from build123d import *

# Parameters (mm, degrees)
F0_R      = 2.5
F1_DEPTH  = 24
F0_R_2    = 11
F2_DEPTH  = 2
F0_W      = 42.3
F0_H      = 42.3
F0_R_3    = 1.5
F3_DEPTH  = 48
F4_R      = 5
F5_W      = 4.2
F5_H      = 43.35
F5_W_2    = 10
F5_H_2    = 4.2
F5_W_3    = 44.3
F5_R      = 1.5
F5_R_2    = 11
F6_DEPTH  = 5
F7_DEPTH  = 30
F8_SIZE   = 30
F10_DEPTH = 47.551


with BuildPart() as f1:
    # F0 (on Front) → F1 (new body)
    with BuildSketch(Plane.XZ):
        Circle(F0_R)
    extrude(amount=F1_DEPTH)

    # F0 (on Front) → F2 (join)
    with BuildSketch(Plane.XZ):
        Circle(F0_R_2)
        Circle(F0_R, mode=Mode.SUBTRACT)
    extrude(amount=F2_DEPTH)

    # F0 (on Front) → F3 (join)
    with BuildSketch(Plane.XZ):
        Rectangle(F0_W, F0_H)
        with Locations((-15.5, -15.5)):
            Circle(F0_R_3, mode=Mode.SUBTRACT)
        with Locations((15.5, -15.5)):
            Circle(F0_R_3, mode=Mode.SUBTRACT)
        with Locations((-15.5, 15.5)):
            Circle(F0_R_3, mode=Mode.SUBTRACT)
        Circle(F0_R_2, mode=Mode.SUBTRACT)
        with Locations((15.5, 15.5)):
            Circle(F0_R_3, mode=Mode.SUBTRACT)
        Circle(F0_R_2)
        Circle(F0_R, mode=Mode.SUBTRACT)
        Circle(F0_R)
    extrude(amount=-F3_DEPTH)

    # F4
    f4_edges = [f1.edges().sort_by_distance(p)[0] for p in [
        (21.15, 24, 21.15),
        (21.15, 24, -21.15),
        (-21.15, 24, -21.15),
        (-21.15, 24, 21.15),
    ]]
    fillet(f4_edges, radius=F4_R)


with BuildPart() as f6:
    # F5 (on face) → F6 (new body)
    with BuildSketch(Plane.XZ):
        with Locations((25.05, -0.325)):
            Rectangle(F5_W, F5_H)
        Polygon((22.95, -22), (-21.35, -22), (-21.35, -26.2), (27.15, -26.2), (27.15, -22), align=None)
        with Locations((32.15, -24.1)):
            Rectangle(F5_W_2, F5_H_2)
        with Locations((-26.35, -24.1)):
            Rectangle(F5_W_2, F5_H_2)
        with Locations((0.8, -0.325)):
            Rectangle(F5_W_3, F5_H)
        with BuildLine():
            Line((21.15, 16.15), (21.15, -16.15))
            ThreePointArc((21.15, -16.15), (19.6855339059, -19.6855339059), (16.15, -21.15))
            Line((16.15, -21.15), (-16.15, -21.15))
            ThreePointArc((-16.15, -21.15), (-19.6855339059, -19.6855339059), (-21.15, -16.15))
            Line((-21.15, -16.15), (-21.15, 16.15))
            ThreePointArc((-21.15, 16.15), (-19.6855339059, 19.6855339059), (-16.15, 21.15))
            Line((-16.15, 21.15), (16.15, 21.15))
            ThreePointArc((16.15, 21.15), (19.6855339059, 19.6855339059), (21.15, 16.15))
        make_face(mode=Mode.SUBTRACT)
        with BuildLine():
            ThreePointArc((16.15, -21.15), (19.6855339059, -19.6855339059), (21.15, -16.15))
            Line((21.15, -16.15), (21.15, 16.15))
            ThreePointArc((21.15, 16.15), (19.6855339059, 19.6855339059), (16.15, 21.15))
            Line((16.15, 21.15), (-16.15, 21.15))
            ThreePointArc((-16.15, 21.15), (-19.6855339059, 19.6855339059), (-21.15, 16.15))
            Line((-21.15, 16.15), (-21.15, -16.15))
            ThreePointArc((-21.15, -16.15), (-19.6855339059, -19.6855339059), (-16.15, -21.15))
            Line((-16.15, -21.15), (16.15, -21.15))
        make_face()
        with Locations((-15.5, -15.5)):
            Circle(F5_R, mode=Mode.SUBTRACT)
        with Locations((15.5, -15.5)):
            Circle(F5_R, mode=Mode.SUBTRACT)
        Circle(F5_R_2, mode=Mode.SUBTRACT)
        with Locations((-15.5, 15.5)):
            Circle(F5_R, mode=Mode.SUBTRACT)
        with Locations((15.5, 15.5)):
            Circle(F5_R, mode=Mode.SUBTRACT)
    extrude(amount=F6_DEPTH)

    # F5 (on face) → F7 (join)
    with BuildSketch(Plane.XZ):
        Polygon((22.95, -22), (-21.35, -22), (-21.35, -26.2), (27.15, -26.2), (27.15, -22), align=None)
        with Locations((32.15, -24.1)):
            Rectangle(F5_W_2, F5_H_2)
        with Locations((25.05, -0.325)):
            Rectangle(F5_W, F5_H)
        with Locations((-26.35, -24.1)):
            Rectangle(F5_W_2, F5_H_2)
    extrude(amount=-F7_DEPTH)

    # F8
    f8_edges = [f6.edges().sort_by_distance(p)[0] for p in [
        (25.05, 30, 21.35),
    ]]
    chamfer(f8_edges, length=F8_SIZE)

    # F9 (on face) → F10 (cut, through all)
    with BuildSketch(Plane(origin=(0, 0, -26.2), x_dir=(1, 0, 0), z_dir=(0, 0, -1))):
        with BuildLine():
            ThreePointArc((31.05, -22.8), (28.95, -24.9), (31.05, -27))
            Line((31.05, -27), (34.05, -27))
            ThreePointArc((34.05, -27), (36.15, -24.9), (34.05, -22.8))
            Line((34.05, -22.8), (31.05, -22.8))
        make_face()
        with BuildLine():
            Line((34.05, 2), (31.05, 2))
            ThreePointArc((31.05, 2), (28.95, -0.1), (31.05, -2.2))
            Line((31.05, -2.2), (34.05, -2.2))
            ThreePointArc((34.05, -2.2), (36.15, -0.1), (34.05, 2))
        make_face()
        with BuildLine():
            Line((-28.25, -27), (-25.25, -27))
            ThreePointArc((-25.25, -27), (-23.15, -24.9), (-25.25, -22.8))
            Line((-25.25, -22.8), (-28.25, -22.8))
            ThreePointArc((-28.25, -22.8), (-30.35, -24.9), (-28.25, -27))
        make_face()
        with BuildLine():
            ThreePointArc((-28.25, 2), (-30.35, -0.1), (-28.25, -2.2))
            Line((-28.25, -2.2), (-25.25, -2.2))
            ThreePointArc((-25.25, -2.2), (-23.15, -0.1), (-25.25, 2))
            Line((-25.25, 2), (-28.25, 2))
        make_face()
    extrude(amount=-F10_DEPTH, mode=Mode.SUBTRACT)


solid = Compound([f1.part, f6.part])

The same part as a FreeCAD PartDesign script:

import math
import FreeCAD as App
import Part
import Sketcher
from FreeCAD import Vector


def edges_at(feature, points):
    """Names of the edges that pass closest to the given points."""
    edges = feature.Shape.Edges
    near = lambda p: min(range(len(edges)), key=lambda i: edges[i].distToShape(Part.Vertex(*p))[0])
    return sorted({f"Edge{near(p) + 1}" for p in points})


def add_polygon(sketch, points):
    """Adds a closed chain of lines whose ends are joined by coincident constraints."""
    first, n = sketch.GeometryCount, len(points)
    for a, b in zip(points, points[1:] + points[:1]):
        sketch.addGeometry(Part.LineSegment(App.Vector(*a, 0), App.Vector(*b, 0)), False)
    for i in range(n):
        sketch.addConstraint(Sketcher.Constraint("Coincident", first + i, 2, first + (i + 1) % n, 1))

doc = App.newDocument("Part")
params = doc.addObject("Spreadsheet::Sheet", "Params")
for row, (alias, value) in enumerate([
    ("sketch1_diameter", "5 mm"),
    ("pad1_length", "24 mm"),
    ("sketch2_diameter", "22 mm"),
    ("sketch2_diameter2", "5 mm"),
    ("pad2_length", "2 mm"),
    ("sketch3_diameter", "3 mm"),
    ("sketch3_width", "42.3 mm"),
    ("pad3_length", "48 mm"),
    ("fillet_radius", "5 mm"),
    ("sketch4_diameter", "3 mm"),
    ("sketch4_diameter2", "22 mm"),
    ("sketch4_width", "10 mm"),
    ("sketch4_width2", "68.5 mm"),
    ("sketch4_height", "4.2 mm"),
    ("pad4_length", "5 mm"),
    ("sketch5_width", "10 mm"),
    ("sketch5_width2", "4.2 mm"),
    ("sketch5_width3", "54.3 mm"),
    ("sketch5_height", "43.35 mm"),
    ("pad5_length", "30 mm"),
    ("chamfer_size", "30 mm"),
    ("sketch6_radius", "2.1 mm"),
    ("sketch6_width", "3 mm"),
], start=1):
    params.set(f"A{row}", alias)
    params.set(f"B{row}", "=" + value)
    params.setAlias(f"B{row}", alias)

body = doc.addObject("PartDesign::Body", "Body")

# Sketch on XZ plane
sketch1 = body.newObject("Sketcher::SketchObject", "Sketch")
sketch1.AttachmentSupport = (doc.getObject("XZ_Plane"), [""])
sketch1.MapMode = "FlatFace"
sketch1.addGeometry(Part.Circle(Vector(0, 0, 0), Vector(0, 0, 1), 2.5), False)
sketch1.addConstraint([
    Sketcher.Constraint("Coincident", 0, 3, -1, 1),
    Sketcher.Constraint("Diameter", 0, 5.0),
])
sketch1.setExpression("Constraints[1]", "Params.sketch1_diameter")
pad1 = body.newObject("PartDesign::Pad", "Pad")
pad1.Profile = sketch1
pad1.setExpression("Length", "Params.pad1_length")

# Sketch on XZ plane
sketch2 = body.newObject("Sketcher::SketchObject", "Sketch001")
sketch2.AttachmentSupport = (doc.getObject("XZ_Plane"), [""])
sketch2.MapMode = "FlatFace"
sketch2.addGeometry([
    Part.Circle(Vector(0, 0, 0), Vector(0, 0, 1), 11),
    Part.Circle(Vector(0, 0, 0), Vector(0, 0, 1), 2.5),
], False)
sketch2.addConstraint([
    Sketcher.Constraint("Coincident", 0, 3, -1, 1),
    Sketcher.Constraint("Coincident", 1, 3, -1, 1),
    Sketcher.Constraint("Diameter", 0, 22.0),
    Sketcher.Constraint("Diameter", 1, 5.0),
])
sketch2.setExpression("Constraints[2]", "Params.sketch2_diameter")
sketch2.setExpression("Constraints[3]", "Params.sketch2_diameter2")
pad2 = body.newObject("PartDesign::Pad", "Pad001")
pad2.Profile = sketch2
pad2.setExpression("Length", "Params.pad2_length")

# Sketch on XZ plane
sketch3 = body.newObject("Sketcher::SketchObject", "Sketch002")
sketch3.AttachmentSupport = (doc.getObject("XZ_Plane"), [""])
sketch3.MapMode = "FlatFace"
add_polygon(sketch3, [(-21.1, 21.1), (-21.1, -21.1), (21.1, -21.1), (21.1, 21.1)])  # lines 0-3
sketch3.addGeometry(Part.Circle(Vector(-15.5, -15.5, 0), Vector(0, 0, 1), 1.5), False)  # 4
sketch3.addGeometry(Part.Circle(Vector(15.5, -15.5, 0), Vector(0, 0, 1), 1.5), False)  # 5
sketch3.addGeometry(Part.Circle(Vector(-15.5, 15.5, 0), Vector(0, 0, 1), 1.5), False)  # 6
sketch3.addGeometry(Part.Circle(Vector(15.5, 15.5, 0), Vector(0, 0, 1), 1.5), False)  # 7
sketch3.addConstraint([
    Sketcher.Constraint("Vertical", 0),
    Sketcher.Constraint("Horizontal", 1),
    Sketcher.Constraint("Vertical", 2),
    Sketcher.Constraint("Horizontal", 3),
    Sketcher.Constraint("Equal", 4, 5),
    Sketcher.Constraint("Equal", 5, 6),
    Sketcher.Constraint("Equal", 6, 7),
    Sketcher.Constraint("Symmetric", 5, 3, 6, 3, -1, 1),
    Sketcher.Constraint("Symmetric", 4, 3, 7, 3, -1, 1),
    Sketcher.Constraint("Symmetric", 0, 2, 2, 2, -1, 1),
    Sketcher.Constraint("Symmetric", 4, 3, 5, 3, -2),
    Sketcher.Constraint("Equal", 3, 0),
    Sketcher.Constraint("Diameter", 4, 3.0),
    Sketcher.Constraint("DistanceX", 1, 1, 1, 2, 42.3),
    Sketcher.Constraint("DistanceX", 4, 3, 5, 3, 31.0),
    Sketcher.Constraint("DistanceY", 4, 3, 6, 3, 31.0),
])
sketch3.setExpression("Constraints[16]", "Params.sketch3_diameter")
sketch3.setExpression("Constraints[17]", "Params.sketch3_width")
pad3 = body.newObject("PartDesign::Pad", "Pad002")
pad3.Profile = sketch3
pad3.setExpression("Length", "Params.pad3_length")
pad3.Reversed = True
doc.recompute()

fillet = body.newObject("PartDesign::Fillet", "Fillet")
fillet.Base = (pad3, edges_at(pad3, [
    (21.15, 24, 21.15),
    (21.15, 24, -21.15),
    (-21.15, 24, -21.15),
    (-21.15, 24, 21.15),
]))
fillet.setExpression("Radius", "Params.fillet_radius")
body2 = doc.addObject("PartDesign::Body", "Body001")

# Sketch on XZ plane
sketch4 = body2.newObject("Sketcher::SketchObject", "Sketch003")
sketch4.AttachmentSupport = (doc.getObject("XZ_Plane001"), [""])
sketch4.MapMode = "FlatFace"
add_polygon(sketch4, [(-21.4, -22), (-31.4, -22), (-31.4, -26.2), (37.1, -26.2), (37.1, -22), (27.1, -22), (27.1, 21.4), (-21.4, 21.4)])  # lines 0-7
sketch4.addGeometry(Part.Circle(Vector(-15.5, -15.5, 0), Vector(0, 0, 1), 1.5), False)  # 8
sketch4.addGeometry(Part.Circle(Vector(15.5, -15.5, 0), Vector(0, 0, 1), 1.5), False)  # 9
sketch4.addGeometry(Part.Circle(Vector(-15.5, 15.5, 0), Vector(0, 0, 1), 1.5), False)  # 10
sketch4.addGeometry(Part.Circle(Vector(0, 0, 0), Vector(0, 0, 1), 11), False)  # 11
sketch4.addGeometry(Part.Circle(Vector(15.5, 15.5, 0), Vector(0, 0, 1), 1.5), False)  # 12
sketch4.addConstraint([
    Sketcher.Constraint("Horizontal", 0),
    Sketcher.Constraint("Vertical", 1),
    Sketcher.Constraint("Horizontal", 2),
    Sketcher.Constraint("Vertical", 3),
    Sketcher.Constraint("Horizontal", 4),
    Sketcher.Constraint("Vertical", 5),
    Sketcher.Constraint("Horizontal", 6),
    Sketcher.Constraint("Vertical", 7),
    Sketcher.Constraint("Coincident", 11, 3, -1, 1),
    Sketcher.Constraint("Equal", 8, 9),
    Sketcher.Constraint("Equal", 9, 10),
    Sketcher.Constraint("Equal", 10, 12),
    Sketcher.Constraint("Symmetric", 9, 3, 10, 3, -1, 1),
    Sketcher.Constraint("Symmetric", 8, 3, 12, 3, -1, 1),
    Sketcher.Constraint("Symmetric", 8, 3, 9, 3, -2),
    Sketcher.Constraint("Horizontal", 0, 2, 3, 2),
    Sketcher.Constraint("Equal", 0, 4),
    Sketcher.Constraint("Diameter", 8, 3.0),
    Sketcher.Constraint("Diameter", 11, 22.0),
    Sketcher.Constraint("DistanceX", 0, 2, 0, 1, 10.0),
    Sketcher.Constraint("DistanceX", 2, 1, 2, 2, 68.5),
    Sketcher.Constraint("DistanceY", 1, 2, 1, 1, 4.2),
    Sketcher.Constraint("DistanceY", 0, 2, -1, 1, 22.0),
    Sketcher.Constraint("DistanceX", 8, 3, 9, 3, 31.0),
    Sketcher.Constraint("DistanceY", 8, 3, 10, 3, 31.0),
    Sketcher.Constraint("DistanceY", 5, 1, 5, 2, 43.35),
    Sketcher.Constraint("DistanceX", 0, 2, -1, 1, 31.35),
])
sketch4.setExpression("Constraints[25]", "Params.sketch4_diameter")
sketch4.setExpression("Constraints[26]", "Params.sketch4_diameter2")
sketch4.setExpression("Constraints[27]", "Params.sketch4_width")
sketch4.setExpression("Constraints[28]", "Params.sketch4_width2")
sketch4.setExpression("Constraints[29]", "Params.sketch4_height")
pad4 = body2.newObject("PartDesign::Pad", "Pad003")
pad4.Profile = sketch4
pad4.setExpression("Length", "Params.pad4_length")

# Sketch on XZ plane
sketch5 = body2.newObject("Sketcher::SketchObject", "Sketch004")
sketch5.AttachmentSupport = (doc.getObject("XZ_Plane001"), [""])
sketch5.MapMode = "FlatFace"
add_polygon(sketch5, [(37.1, -26.2), (37.1, -22), (27.1, -22), (27.1, 21.4), (22.9, 21.4), (22.9, -22), (-31.4, -22), (-31.4, -26.2)])  # lines 0-7
sketch5.addConstraint([
    Sketcher.Constraint("Vertical", 0),
    Sketcher.Constraint("Horizontal", 1),
    Sketcher.Constraint("Vertical", 2),
    Sketcher.Constraint("Horizontal", 3),
    Sketcher.Constraint("Vertical", 4),
    Sketcher.Constraint("Horizontal", 5),
    Sketcher.Constraint("Vertical", 6),
    Sketcher.Constraint("Horizontal", 7),
    Sketcher.Constraint("Horizontal", 1, 2, 4, 2),
    Sketcher.Constraint("Equal", 3, 0),
    Sketcher.Constraint("DistanceX", 1, 2, 1, 1, 10.0),
    Sketcher.Constraint("DistanceX", 3, 2, 3, 1, 4.2),
    Sketcher.Constraint("DistanceX", 5, 2, 5, 1, 54.3),
    Sketcher.Constraint("DistanceY", 0, 2, -1, 1, 22.0),
    Sketcher.Constraint("DistanceY", 2, 1, 2, 2, 43.35),
    Sketcher.Constraint("DistanceX", -1, 1, 0, 2, 37.15),
])
sketch5.setExpression("Constraints[18]", "Params.sketch5_width")
sketch5.setExpression("Constraints[19]", "Params.sketch5_width2")
sketch5.setExpression("Constraints[20]", "Params.sketch5_width3")
sketch5.setExpression("Constraints[22]", "Params.sketch5_height")
pad5 = body2.newObject("PartDesign::Pad", "Pad004")
pad5.Profile = sketch5
pad5.setExpression("Length", "Params.pad5_length")
pad5.Reversed = True
doc.recompute()

chamfer = body2.newObject("PartDesign::Chamfer", "Chamfer")
chamfer.Base = (pad5, edges_at(pad5, [(25.05, 30, 21.35)]))
chamfer.setExpression("Size", "Params.chamfer_size")

# Sketch on XY plane
sketch6 = body2.newObject("Sketcher::SketchObject", "Sketch005")
sketch6.AttachmentSupport = (doc.getObject("XY_Plane001"), [""])
sketch6.MapMode = "FlatFace"
sketch6.AttachmentOffset = App.Placement(Vector(0, 0, -26.2), App.Rotation())
sketch6.addGeometry([
    Part.ArcOfCircle(Part.Circle(Vector(31.1, 24.9, 0), Vector(0, 0, 1), 2.1), math.radians(90), math.radians(270)),  # 0
    Part.LineSegment(Vector(31.1, 27, 0), Vector(34, 27, 0)),  # 1
    Part.ArcOfCircle(Part.Circle(Vector(34, 24.9, 0), Vector(0, 0, 1), 2.1), math.radians(-90), math.radians(90)),  # 2
    Part.LineSegment(Vector(34, 22.8, 0), Vector(31.1, 22.8, 0)),  # 3
    Part.LineSegment(Vector(34, -2, 0), Vector(31.1, -2, 0)),  # 4
    Part.ArcOfCircle(Part.Circle(Vector(31.1, 0.1, 0), Vector(0, 0, 1), 2.1), math.radians(90), math.radians(270)),  # 5
    Part.LineSegment(Vector(31.1, 2.2, 0), Vector(34, 2.2, 0)),  # 6
    Part.ArcOfCircle(Part.Circle(Vector(34, 0.1, 0), Vector(0, 0, 1), 2.1), math.radians(-90), math.radians(90)),  # 7
    Part.LineSegment(Vector(-28.2, 27, 0), Vector(-25.2, 27, 0)),  # 8
    Part.ArcOfCircle(Part.Circle(Vector(-25.2, 24.9, 0), Vector(0, 0, 1), 2.1), math.radians(-90), math.radians(90)),  # 9
    Part.LineSegment(Vector(-25.2, 22.8, 0), Vector(-28.2, 22.8, 0)),  # 10
    Part.ArcOfCircle(Part.Circle(Vector(-28.2, 24.9, 0), Vector(0, 0, 1), 2.1), math.radians(90), math.radians(270)),  # 11
    Part.ArcOfCircle(Part.Circle(Vector(-28.2, 0.1, 0), Vector(0, 0, 1), 2.1), math.radians(90), math.radians(270)),  # 12
    Part.LineSegment(Vector(-28.2, 2.2, 0), Vector(-25.2, 2.2, 0)),  # 13
    Part.ArcOfCircle(Part.Circle(Vector(-25.2, 0.1, 0), Vector(0, 0, 1), 2.1), math.radians(-90), math.radians(90)),  # 14
    Part.LineSegment(Vector(-25.2, -2, 0), Vector(-28.2, -2, 0)),  # 15
], False)
sketch6.addConstraint([
    Sketcher.Constraint("Tangent", 0, 1, 1, 1),
    Sketcher.Constraint("Tangent", 1, 2, 2, 2),
    Sketcher.Constraint("Tangent", 2, 1, 3, 1),
    Sketcher.Constraint("Tangent", 3, 2, 0, 2),
    Sketcher.Constraint("Tangent", 4, 2, 5, 2),
    Sketcher.Constraint("Tangent", 5, 1, 6, 1),
    Sketcher.Constraint("Tangent", 6, 2, 7, 2),
    Sketcher.Constraint("Tangent", 7, 1, 4, 1),
    Sketcher.Constraint("Tangent", 8, 2, 9, 2),
    Sketcher.Constraint("Tangent", 9, 1, 10, 1),
    Sketcher.Constraint("Tangent", 10, 2, 11, 2),
    Sketcher.Constraint("Tangent", 11, 1, 8, 1),
    Sketcher.Constraint("Tangent", 12, 1, 13, 1),
    Sketcher.Constraint("Tangent", 13, 2, 14, 2),
    Sketcher.Constraint("Tangent", 14, 1, 15, 1),
    Sketcher.Constraint("Tangent", 15, 2, 12, 2),
    Sketcher.Constraint("Horizontal", 1),
    Sketcher.Constraint("Horizontal", 3),
    Sketcher.Constraint("Horizontal", 4),
    Sketcher.Constraint("Horizontal", 6),
    Sketcher.Constraint("Horizontal", 8),
    Sketcher.Constraint("Horizontal", 10),
    Sketcher.Constraint("Horizontal", 13),
    Sketcher.Constraint("Horizontal", 15),
    Sketcher.Constraint("Equal", 2, 5),
    Sketcher.Constraint("Equal", 7, 9),
    Sketcher.Constraint("Equal", 11, 12),
    Sketcher.Constraint("Horizontal", 2, 3, 9, 3),
    Sketcher.Constraint("Horizontal", 7, 3, 12, 3),
    Sketcher.Constraint("Vertical", 0, 3, 5, 3),
    Sketcher.Constraint("Vertical", 2, 3, 7, 3),
    Sketcher.Constraint("Vertical", 11, 3, 12, 3),
    Sketcher.Constraint("Vertical", 9, 3, 14, 3),
    Sketcher.Constraint("Equal", 6, 8),
    Sketcher.Constraint("Radius", 0, 2.1),
    Sketcher.Constraint("DistanceX", 1, 1, 1, 2, 3.0),
    Sketcher.Constraint("DistanceY", -1, 1, 0, 1, 27.0),
    Sketcher.Constraint("DistanceY", 4, 2, -1, 1, 2.0),
    Sketcher.Constraint("DistanceX", 9, 3, 0, 3, 56.3),
    Sketcher.Constraint("DistanceX", -1, 1, 0, 3, 31.05),
])
sketch6.setExpression("Constraints[34]", "Params.sketch6_radius")
sketch6.setExpression("Constraints[35]", "Params.sketch6_width")
pocket1 = body2.newObject("PartDesign::Pocket", "Pocket")
pocket1.Profile = sketch6
pocket1.Type = "ThroughAll"
pocket1.Reversed = True

doc.recompute()
